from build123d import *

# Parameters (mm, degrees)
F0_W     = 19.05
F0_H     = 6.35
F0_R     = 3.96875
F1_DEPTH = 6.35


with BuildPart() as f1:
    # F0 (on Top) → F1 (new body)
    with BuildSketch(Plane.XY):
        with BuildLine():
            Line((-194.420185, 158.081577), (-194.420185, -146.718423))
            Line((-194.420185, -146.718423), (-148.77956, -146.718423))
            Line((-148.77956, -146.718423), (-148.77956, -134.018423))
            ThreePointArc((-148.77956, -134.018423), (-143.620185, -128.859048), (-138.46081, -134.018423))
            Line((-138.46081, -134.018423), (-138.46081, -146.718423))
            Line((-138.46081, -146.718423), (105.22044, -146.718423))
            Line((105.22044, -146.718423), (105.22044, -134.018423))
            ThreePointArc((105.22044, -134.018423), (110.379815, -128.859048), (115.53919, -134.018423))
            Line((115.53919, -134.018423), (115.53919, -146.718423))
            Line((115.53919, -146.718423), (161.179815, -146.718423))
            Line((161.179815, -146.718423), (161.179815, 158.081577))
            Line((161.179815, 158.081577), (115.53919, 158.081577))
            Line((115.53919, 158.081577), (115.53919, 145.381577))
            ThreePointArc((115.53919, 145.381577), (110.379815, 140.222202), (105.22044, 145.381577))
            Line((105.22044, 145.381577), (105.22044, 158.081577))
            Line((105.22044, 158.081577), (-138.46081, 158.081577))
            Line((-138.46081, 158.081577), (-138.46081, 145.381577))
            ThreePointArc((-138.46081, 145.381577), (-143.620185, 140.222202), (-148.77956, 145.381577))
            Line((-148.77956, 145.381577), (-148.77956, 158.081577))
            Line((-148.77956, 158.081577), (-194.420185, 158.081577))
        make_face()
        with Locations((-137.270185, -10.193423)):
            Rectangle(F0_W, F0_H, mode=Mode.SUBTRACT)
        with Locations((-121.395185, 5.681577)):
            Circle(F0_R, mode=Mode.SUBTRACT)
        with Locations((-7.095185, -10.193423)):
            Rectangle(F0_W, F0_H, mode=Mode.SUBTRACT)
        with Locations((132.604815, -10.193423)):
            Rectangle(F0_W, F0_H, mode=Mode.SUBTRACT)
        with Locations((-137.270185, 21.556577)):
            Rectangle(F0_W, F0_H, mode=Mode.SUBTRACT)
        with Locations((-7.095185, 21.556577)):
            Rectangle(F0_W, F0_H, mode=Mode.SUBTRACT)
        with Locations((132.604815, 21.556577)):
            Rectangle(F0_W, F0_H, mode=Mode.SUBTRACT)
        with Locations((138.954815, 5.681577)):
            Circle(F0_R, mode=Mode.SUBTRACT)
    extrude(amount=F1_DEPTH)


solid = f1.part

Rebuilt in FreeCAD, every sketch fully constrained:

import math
import FreeCAD as App
import Part
import Sketcher

V = App.Vector
Q = App.Units.Quantity

doc = App.newDocument("Part")
body = doc.addObject("PartDesign::Body", "Body")

sketch1 = body.newObject("Sketcher::SketchObject", "Sketch")
sketch1.AttachmentSupport = (doc.getObject("XY_Plane"), [""])
sketch1.MapMode = "FlatFace"
sketch1.addGeometry(Part.LineSegment(V(-194.4, 158.1, 0), V(-194.4, -146.7, 0)), False)
sketch1.addGeometry(Part.LineSegment(V(-194.4, -146.7, 0), V(-148.8, -146.7, 0)), False)
sketch1.addGeometry(Part.LineSegment(V(-148.8, -146.7, 0), V(-148.8, -134, 0)), False)
sketch1.addGeometry(Part.ArcOfCircle(Part.Circle(V(-143.6, -134, 0), V(0, 0, 1), 5.2), math.radians(0), math.radians(180)), False)
sketch1.addGeometry(Part.LineSegment(V(-138.5, -134, 0), V(-138.5, -146.7, 0)), False)
sketch1.addGeometry(Part.LineSegment(V(-138.5, -146.7, 0), V(105.2, -146.7, 0)), False)
sketch1.addGeometry(Part.LineSegment(V(105.2, -146.7, 0), V(105.2, -134, 0)), False)
sketch1.addGeometry(Part.ArcOfCircle(Part.Circle(V(110.4, -134, 0), V(0, 0, 1), 5.2), math.radians(0), math.radians(180)), False)
sketch1.addGeometry(Part.LineSegment(V(115.5, -134, 0), V(115.5, -146.7, 0)), False)
sketch1.addGeometry(Part.LineSegment(V(115.5, -146.7, 0), V(161.2, -146.7, 0)), False)
sketch1.addGeometry(Part.LineSegment(V(161.2, -146.7, 0), V(161.2, 158.1, 0)), False)
sketch1.addGeometry(Part.LineSegment(V(161.2, 158.1, 0), V(115.5, 158.1, 0)), False)
sketch1.addGeometry(Part.LineSegment(V(115.5, 158.1, 0), V(115.5, 145.4, 0)), False)
sketch1.addGeometry(Part.ArcOfCircle(Part.Circle(V(110.4, 145.4, 0), V(0, 0, 1), 5.2), math.radians(180), math.radians(360)), False)
sketch1.addGeometry(Part.LineSegment(V(105.2, 145.4, 0), V(105.2, 158.1, 0)), False)
sketch1.addGeometry(Part.LineSegment(V(105.2, 158.1, 0), V(-138.5, 158.1, 0)), False)
sketch1.addGeometry(Part.LineSegment(V(-138.5, 158.1, 0), V(-138.5, 145.4, 0)), False)
sketch1.addGeometry(Part.ArcOfCircle(Part.Circle(V(-143.6, 145.4, 0), V(0, 0, 1), 5.2), math.radians(180), math.radians(360)), False)
sketch1.addGeometry(Part.LineSegment(V(-148.8, 145.4, 0), V(-148.8, 158.1, 0)), False)
sketch1.addGeometry(Part.LineSegment(V(-148.8, 158.1, 0), V(-194.4, 158.1, 0)), False)
sketch1.addGeometry(Part.LineSegment(V(-127.7, -13.4, 0), V(-146.8, -13.4, 0)), False)
sketch1.addGeometry(Part.LineSegment(V(-146.8, -13.4, 0), V(-146.8, -7, 0)), False)
sketch1.addGeometry(Part.LineSegment(V(-146.8, -7, 0), V(-127.7, -7, 0)), False)
sketch1.addGeometry(Part.LineSegment(V(-127.7, -7, 0), V(-127.7, -13.4, 0)), False)
sketch1.addGeometry(Part.LineSegment(V(2.4, -13.4, 0), V(-16.6, -13.4, 0)), False)
sketch1.addGeometry(Part.LineSegment(V(-16.6, -13.4, 0), V(-16.6, -7, 0)), False)
sketch1.addGeometry(Part.LineSegment(V(-16.6, -7, 0), V(2.4, -7, 0)), False)
sketch1.addGeometry(Part.LineSegment(V(2.4, -7, 0), V(2.4, -13.4, 0)), False)
sketch1.addGeometry(Part.LineSegment(V(142.1, -13.4, 0), V(123.1, -13.4, 0)), False)
sketch1.addGeometry(Part.LineSegment(V(123.1, -13.4, 0), V(123.1, -7, 0)), False)
sketch1.addGeometry(Part.LineSegment(V(123.1, -7, 0), V(142.1, -7, 0)), False)
sketch1.addGeometry(Part.LineSegment(V(142.1, -7, 0), V(142.1, -13.4, 0)), False)
sketch1.addGeometry(Part.Circle(V(-121.4, 5.7, 0), V(0, 0, 1), 4), False)
sketch1.addGeometry(Part.LineSegment(V(-127.7, 18.4, 0), V(-146.8, 18.4, 0)), False)
sketch1.addGeometry(Part.LineSegment(V(-146.8, 18.4, 0), V(-146.8, 24.7, 0)), False)
sketch1.addGeometry(Part.LineSegment(V(-146.8, 24.7, 0), V(-127.7, 24.7, 0)), False)
sketch1.addGeometry(Part.LineSegment(V(-127.7, 24.7, 0), V(-127.7, 18.4, 0)), False)
sketch1.addGeometry(Part.LineSegment(V(2.4, 18.4, 0), V(-16.6, 18.4, 0)), False)
sketch1.addGeometry(Part.LineSegment(V(-16.6, 18.4, 0), V(-16.6, 24.7, 0)), False)
sketch1.addGeometry(Part.LineSegment(V(-16.6, 24.7, 0), V(2.4, 24.7, 0)), False)
sketch1.addGeometry(Part.LineSegment(V(2.4, 24.7, 0), V(2.4, 18.4, 0)), False)
sketch1.addGeometry(Part.Circle(V(139, 5.7, 0), V(0, 0, 1), 4), False)
sketch1.addGeometry(Part.LineSegment(V(142.1, 18.4, 0), V(123.1, 18.4, 0)), False)
sketch1.addGeometry(Part.LineSegment(V(123.1, 18.4, 0), V(123.1, 24.7, 0)), False)
sketch1.addGeometry(Part.LineSegment(V(123.1, 24.7, 0), V(142.1, 24.7, 0)), False)
sketch1.addGeometry(Part.LineSegment(V(142.1, 24.7, 0), V(142.1, 18.4, 0)), False)
sketch1.addConstraint(Sketcher.Constraint("Coincident", 0, 2, 1, 1))
sketch1.addConstraint(Sketcher.Constraint("Coincident", 1, 2, 2, 1))
sketch1.addConstraint(Sketcher.Constraint("Tangent", 2, 2, 3, 2))
sketch1.addConstraint(Sketcher.Constraint("Tangent", 3, 1, 4, 1))
sketch1.addConstraint(Sketcher.Constraint("Coincident", 4, 2, 5, 1))
sketch1.addConstraint(Sketcher.Constraint("Coincident", 5, 2, 6, 1))
sketch1.addConstraint(Sketcher.Constraint("Tangent", 6, 2, 7, 2))
sketch1.addConstraint(Sketcher.Constraint("Tangent", 7, 1, 8, 1))
sketch1.addConstraint(Sketcher.Constraint("Coincident", 8, 2, 9, 1))
sketch1.addConstraint(Sketcher.Constraint("Coincident", 9, 2, 10, 1))
sketch1.addConstraint(Sketcher.Constraint("Coincident", 10, 2, 11, 1))
sketch1.addConstraint(Sketcher.Constraint("Coincident", 11, 2, 12, 1))
sketch1.addConstraint(Sketcher.Constraint("Tangent", 12, 2, 13, 2))
sketch1.addConstraint(Sketcher.Constraint("Tangent", 13, 1, 14, 1))
sketch1.addConstraint(Sketcher.Constraint("Coincident", 14, 2, 15, 1))
sketch1.addConstraint(Sketcher.Constraint("Coincident", 15, 2, 16, 1))
sketch1.addConstraint(Sketcher.Constraint("Tangent", 16, 2, 17, 2))
sketch1.addConstraint(Sketcher.Constraint("Tangent", 17, 1, 18, 1))
sketch1.addConstraint(Sketcher.Constraint("Coincident", 18, 2, 19, 1))
sketch1.addConstraint(Sketcher.Constraint("Coincident", 19, 2, 0, 1))
sketch1.addConstraint(Sketcher.Constraint("Coincident", 20, 2, 21, 1))
sketch1.addConstraint(Sketcher.Constraint("Coincident", 21, 2, 22, 1))
sketch1.addConstraint(Sketcher.Constraint("Coincident", 22, 2, 23, 1))
sketch1.addConstraint(Sketcher.Constraint("Coincident", 23, 2, 20, 1))
sketch1.addConstraint(Sketcher.Constraint("Coincident", 24, 2, 25, 1))
sketch1.addConstraint(Sketcher.Constraint("Coincident", 25, 2, 26, 1))
sketch1.addConstraint(Sketcher.Constraint("Coincident", 26, 2, 27, 1))
sketch1.addConstraint(Sketcher.Constraint("Coincident", 27, 2, 24, 1))
sketch1.addConstraint(Sketcher.Constraint("Coincident", 28, 2, 29, 1))
sketch1.addConstraint(Sketcher.Constraint("Coincident", 29, 2, 30, 1))
sketch1.addConstraint(Sketcher.Constraint("Coincident", 30, 2, 31, 1))
sketch1.addConstraint(Sketcher.Constraint("Coincident", 31, 2, 28, 1))
sketch1.addConstraint(Sketcher.Constraint("Coincident", 33, 2, 34, 1))
sketch1.addConstraint(Sketcher.Constraint("Coincident", 34, 2, 35, 1))
sketch1.addConstraint(Sketcher.Constraint("Coincident", 35, 2, 36, 1))
sketch1.addConstraint(Sketcher.Constraint("Coincident", 36, 2, 33, 1))
sketch1.addConstraint(Sketcher.Constraint("Coincident", 37, 2, 38, 1))
sketch1.addConstraint(Sketcher.Constraint("Coincident", 38, 2, 39, 1))
sketch1.addConstraint(Sketcher.Constraint("Coincident", 39, 2, 40, 1))
sketch1.addConstraint(Sketcher.Constraint("Coincident", 40, 2, 37, 1))
sketch1.addConstraint(Sketcher.Constraint("Coincident", 42, 2, 43, 1))
sketch1.addConstraint(Sketcher.Constraint("Coincident", 43, 2, 44, 1))
sketch1.addConstraint(Sketcher.Constraint("Coincident", 44, 2, 45, 1))
sketch1.addConstraint(Sketcher.Constraint("Coincident", 45, 2, 42, 1))
sketch1.addConstraint(Sketcher.Constraint("Vertical", 0))
sketch1.addConstraint(Sketcher.Constraint("Horizontal", 1))
sketch1.addConstraint(Sketcher.Constraint("Vertical", 2))
sketch1.addConstraint(Sketcher.Constraint("Vertical", 4))
sketch1.addConstraint(Sketcher.Constraint("Horizontal", 5))
sketch1.addConstraint(Sketcher.Constraint("Vertical", 6))
sketch1.addConstraint(Sketcher.Constraint("Vertical", 8))
sketch1.addConstraint(Sketcher.Constraint("Horizontal", 9))
sketch1.addConstraint(Sketcher.Constraint("Vertical", 10))
sketch1.addConstraint(Sketcher.Constraint("Horizontal", 11))
sketch1.addConstraint(Sketcher.Constraint("Vertical", 12))
sketch1.addConstraint(Sketcher.Constraint("Vertical", 14))
sketch1.addConstraint(Sketcher.Constraint("Horizontal", 15))
sketch1.addConstraint(Sketcher.Constraint("Vertical", 16))
sketch1.addConstraint(Sketcher.Constraint("Vertical", 18))
sketch1.addConstraint(Sketcher.Constraint("Horizontal", 19))
sketch1.addConstraint(Sketcher.Constraint("Horizontal", 20))
sketch1.addConstraint(Sketcher.Constraint("Vertical", 21))
sketch1.addConstraint(Sketcher.Constraint("Horizontal", 22))
sketch1.addConstraint(Sketcher.Constraint("Vertical", 23))
sketch1.addConstraint(Sketcher.Constraint("Horizontal", 24))
sketch1.addConstraint(Sketcher.Constraint("Vertical", 25))
sketch1.addConstraint(Sketcher.Constraint("Horizontal", 26))
sketch1.addConstraint(Sketcher.Constraint("Vertical", 27))
sketch1.addConstraint(Sketcher.Constraint("Horizontal", 28))
sketch1.addConstraint(Sketcher.Constraint("Vertical", 29))
sketch1.addConstraint(Sketcher.Constraint("Horizontal", 30))
sketch1.addConstraint(Sketcher.Constraint("Vertical", 31))
sketch1.addConstraint(Sketcher.Constraint("Horizontal", 33))
sketch1.addConstraint(Sketcher.Constraint("Vertical", 34))
sketch1.addConstraint(Sketcher.Constraint("Horizontal", 35))
sketch1.addConstraint(Sketcher.Constraint("Vertical", 36))
sketch1.addConstraint(Sketcher.Constraint("Horizontal", 37))
sketch1.addConstraint(Sketcher.Constraint("Vertical", 38))
sketch1.addConstraint(Sketcher.Constraint("Horizontal", 39))
sketch1.addConstraint(Sketcher.Constraint("Vertical", 40))
sketch1.addConstraint(Sketcher.Constraint("Horizontal", 42))
sketch1.addConstraint(Sketcher.Constraint("Vertical", 43))
sketch1.addConstraint(Sketcher.Constraint("Horizontal", 44))
sketch1.addConstraint(Sketcher.Constraint("Vertical", 45))
sketch1.addConstraint(Sketcher.Constraint("Equal", 3, 7))
sketch1.addConstraint(Sketcher.Constraint("Equal", 7, 13))
sketch1.addConstraint(Sketcher.Constraint("Equal", 13, 17))
sketch1.addConstraint(Sketcher.Constraint("Equal", 32, 41))
sketch1.addConstraint(Sketcher.Constraint("Horizontal", 3, 3, 7, 3))
sketch1.addConstraint(Sketcher.Constraint("Horizontal", 13, 3, 17, 3))
sketch1.addConstraint(Sketcher.Constraint("Horizontal", 32, 3, 41, 3))
sketch1.addConstraint(Sketcher.Constraint("Horizontal", 1, 2, 4, 2))
sketch1.addConstraint(Sketcher.Constraint("Horizontal", 5, 2, 8, 2))
sketch1.addConstraint(Sketcher.Constraint("Horizontal", 11, 2, 14, 2))
sketch1.addConstraint(Sketcher.Constraint("Horizontal", 15, 2, 18, 2))
sketch1.addConstraint(Sketcher.Constraint("Horizontal", 23, 2, 24, 2))
sketch1.addConstraint(Sketcher.Constraint("Horizontal", 22, 2, 25, 2))
sketch1.addConstraint(Sketcher.Constraint("Horizontal", 27, 2, 28, 2))
sketch1.addConstraint(Sketcher.Constraint("Horizontal", 26, 2, 29, 2))
sketch1.addConstraint(Sketcher.Constraint("Horizontal", 36, 2, 37, 2))
sketch1.addConstraint(Sketcher.Constraint("Horizontal", 35, 2, 38, 2))
sketch1.addConstraint(Sketcher.Constraint("Horizontal", 40, 2, 42, 2))
sketch1.addConstraint(Sketcher.Constraint("Horizontal", 39, 2, 43, 2))
sketch1.addConstraint(Sketcher.Constraint("Vertical", 7, 3, 13, 3))
sketch1.addConstraint(Sketcher.Constraint("Vertical", 3, 3, 17, 3))
sketch1.addConstraint(Sketcher.Constraint("Vertical", 21, 2, 33, 2))
sketch1.addConstraint(Sketcher.Constraint("Vertical", 23, 2, 35, 2))
sketch1.addConstraint(Sketcher.Constraint("Vertical", 25, 2, 37, 2))
sketch1.addConstraint(Sketcher.Constraint("Vertical", 27, 2, 39, 2))
sketch1.addConstraint(Sketcher.Constraint("Vertical", 29, 2, 42, 2))
sketch1.addConstraint(Sketcher.Constraint("Vertical", 31, 2, 44, 2))
sketch1.addConstraint(Sketcher.Constraint("Equal", 1, 9))
sketch1.addConstraint(Sketcher.Constraint("Equal", 22, 24))
sketch1.addConstraint(Sketcher.Constraint("Equal", 26, 28))
sketch1.addConstraint(Sketcher.Constraint("Equal", 8, 12))
sketch1.addConstraint(Sketcher.Constraint("Equal", 31, 34))
sketch1.addConstraint(Sketcher.Constraint("DistanceY", 0, 2, 0, 1, Q("12 in")))
sketch1.addConstraint(Sketcher.Constraint("Diameter", 32, Q("0.3125 in")))
sketch1.addConstraint(Sketcher.Constraint("DistanceY", 2, 1, 2, 2, Q("0.5 in")))
sketch1.addConstraint(Sketcher.Constraint("Radius", 3, Q("0.203125 in")))
sketch1.addConstraint(Sketcher.Constraint("DistanceX", 3, 3, 7, 3, Q("10 in")))
sketch1.addConstraint(Sketcher.Constraint("DistanceX", 0, 2, 3, 3, Q("2 in")))
sketch1.addConstraint(Sketcher.Constraint("DistanceY", 0, 2, 32, 3, Q("6 in")))
sketch1.addConstraint(Sketcher.Constraint("DistanceX", 20, 2, 32, 3, Q("1 in")))
sketch1.addConstraint(Sketcher.Constraint("DistanceY", 2, 2, 21, 2, Q("5 in")))
sketch1.addConstraint(Sketcher.Constraint("DistanceY", 21, 2, 33, 2, Q("1 in")))
sketch1.addConstraint(Sketcher.Constraint("DistanceX", 20, 2, 20, 1, Q("0.75 in")))
sketch1.addConstraint(Sketcher.Constraint("DistanceY", 21, 1, 21, 2, Q("0.25 in")))
sketch1.addConstraint(Sketcher.Constraint("DistanceX", 7, 3, 28, 2, Q("0.5 in")))
sketch1.addConstraint(Sketcher.Constraint("DistanceX", 32, 3, 41, 3, Q("10.25 in")))
sketch1.addConstraint(Sketcher.Constraint("DistanceX", 27, 2, 28, 2, Q("4.75 in")))
sketch1.addConstraint(Sketcher.Constraint("DistanceX", 17, 3, 32, 3, Q("0.875 in")))
sketch1.addConstraint(Sketcher.Constraint("DistanceX", 1, 2, -1, 1, Q("148.77956 mm")))
sketch1.addConstraint(Sketcher.Constraint("DistanceY", 3, 3, -1, 1, Q("134.018423 mm")))
pad1 = body.newObject("PartDesign::Pad", "Pad")
pad1.Profile = sketch1
pad1.Length = Q("0.25 in")

doc.recompute()
